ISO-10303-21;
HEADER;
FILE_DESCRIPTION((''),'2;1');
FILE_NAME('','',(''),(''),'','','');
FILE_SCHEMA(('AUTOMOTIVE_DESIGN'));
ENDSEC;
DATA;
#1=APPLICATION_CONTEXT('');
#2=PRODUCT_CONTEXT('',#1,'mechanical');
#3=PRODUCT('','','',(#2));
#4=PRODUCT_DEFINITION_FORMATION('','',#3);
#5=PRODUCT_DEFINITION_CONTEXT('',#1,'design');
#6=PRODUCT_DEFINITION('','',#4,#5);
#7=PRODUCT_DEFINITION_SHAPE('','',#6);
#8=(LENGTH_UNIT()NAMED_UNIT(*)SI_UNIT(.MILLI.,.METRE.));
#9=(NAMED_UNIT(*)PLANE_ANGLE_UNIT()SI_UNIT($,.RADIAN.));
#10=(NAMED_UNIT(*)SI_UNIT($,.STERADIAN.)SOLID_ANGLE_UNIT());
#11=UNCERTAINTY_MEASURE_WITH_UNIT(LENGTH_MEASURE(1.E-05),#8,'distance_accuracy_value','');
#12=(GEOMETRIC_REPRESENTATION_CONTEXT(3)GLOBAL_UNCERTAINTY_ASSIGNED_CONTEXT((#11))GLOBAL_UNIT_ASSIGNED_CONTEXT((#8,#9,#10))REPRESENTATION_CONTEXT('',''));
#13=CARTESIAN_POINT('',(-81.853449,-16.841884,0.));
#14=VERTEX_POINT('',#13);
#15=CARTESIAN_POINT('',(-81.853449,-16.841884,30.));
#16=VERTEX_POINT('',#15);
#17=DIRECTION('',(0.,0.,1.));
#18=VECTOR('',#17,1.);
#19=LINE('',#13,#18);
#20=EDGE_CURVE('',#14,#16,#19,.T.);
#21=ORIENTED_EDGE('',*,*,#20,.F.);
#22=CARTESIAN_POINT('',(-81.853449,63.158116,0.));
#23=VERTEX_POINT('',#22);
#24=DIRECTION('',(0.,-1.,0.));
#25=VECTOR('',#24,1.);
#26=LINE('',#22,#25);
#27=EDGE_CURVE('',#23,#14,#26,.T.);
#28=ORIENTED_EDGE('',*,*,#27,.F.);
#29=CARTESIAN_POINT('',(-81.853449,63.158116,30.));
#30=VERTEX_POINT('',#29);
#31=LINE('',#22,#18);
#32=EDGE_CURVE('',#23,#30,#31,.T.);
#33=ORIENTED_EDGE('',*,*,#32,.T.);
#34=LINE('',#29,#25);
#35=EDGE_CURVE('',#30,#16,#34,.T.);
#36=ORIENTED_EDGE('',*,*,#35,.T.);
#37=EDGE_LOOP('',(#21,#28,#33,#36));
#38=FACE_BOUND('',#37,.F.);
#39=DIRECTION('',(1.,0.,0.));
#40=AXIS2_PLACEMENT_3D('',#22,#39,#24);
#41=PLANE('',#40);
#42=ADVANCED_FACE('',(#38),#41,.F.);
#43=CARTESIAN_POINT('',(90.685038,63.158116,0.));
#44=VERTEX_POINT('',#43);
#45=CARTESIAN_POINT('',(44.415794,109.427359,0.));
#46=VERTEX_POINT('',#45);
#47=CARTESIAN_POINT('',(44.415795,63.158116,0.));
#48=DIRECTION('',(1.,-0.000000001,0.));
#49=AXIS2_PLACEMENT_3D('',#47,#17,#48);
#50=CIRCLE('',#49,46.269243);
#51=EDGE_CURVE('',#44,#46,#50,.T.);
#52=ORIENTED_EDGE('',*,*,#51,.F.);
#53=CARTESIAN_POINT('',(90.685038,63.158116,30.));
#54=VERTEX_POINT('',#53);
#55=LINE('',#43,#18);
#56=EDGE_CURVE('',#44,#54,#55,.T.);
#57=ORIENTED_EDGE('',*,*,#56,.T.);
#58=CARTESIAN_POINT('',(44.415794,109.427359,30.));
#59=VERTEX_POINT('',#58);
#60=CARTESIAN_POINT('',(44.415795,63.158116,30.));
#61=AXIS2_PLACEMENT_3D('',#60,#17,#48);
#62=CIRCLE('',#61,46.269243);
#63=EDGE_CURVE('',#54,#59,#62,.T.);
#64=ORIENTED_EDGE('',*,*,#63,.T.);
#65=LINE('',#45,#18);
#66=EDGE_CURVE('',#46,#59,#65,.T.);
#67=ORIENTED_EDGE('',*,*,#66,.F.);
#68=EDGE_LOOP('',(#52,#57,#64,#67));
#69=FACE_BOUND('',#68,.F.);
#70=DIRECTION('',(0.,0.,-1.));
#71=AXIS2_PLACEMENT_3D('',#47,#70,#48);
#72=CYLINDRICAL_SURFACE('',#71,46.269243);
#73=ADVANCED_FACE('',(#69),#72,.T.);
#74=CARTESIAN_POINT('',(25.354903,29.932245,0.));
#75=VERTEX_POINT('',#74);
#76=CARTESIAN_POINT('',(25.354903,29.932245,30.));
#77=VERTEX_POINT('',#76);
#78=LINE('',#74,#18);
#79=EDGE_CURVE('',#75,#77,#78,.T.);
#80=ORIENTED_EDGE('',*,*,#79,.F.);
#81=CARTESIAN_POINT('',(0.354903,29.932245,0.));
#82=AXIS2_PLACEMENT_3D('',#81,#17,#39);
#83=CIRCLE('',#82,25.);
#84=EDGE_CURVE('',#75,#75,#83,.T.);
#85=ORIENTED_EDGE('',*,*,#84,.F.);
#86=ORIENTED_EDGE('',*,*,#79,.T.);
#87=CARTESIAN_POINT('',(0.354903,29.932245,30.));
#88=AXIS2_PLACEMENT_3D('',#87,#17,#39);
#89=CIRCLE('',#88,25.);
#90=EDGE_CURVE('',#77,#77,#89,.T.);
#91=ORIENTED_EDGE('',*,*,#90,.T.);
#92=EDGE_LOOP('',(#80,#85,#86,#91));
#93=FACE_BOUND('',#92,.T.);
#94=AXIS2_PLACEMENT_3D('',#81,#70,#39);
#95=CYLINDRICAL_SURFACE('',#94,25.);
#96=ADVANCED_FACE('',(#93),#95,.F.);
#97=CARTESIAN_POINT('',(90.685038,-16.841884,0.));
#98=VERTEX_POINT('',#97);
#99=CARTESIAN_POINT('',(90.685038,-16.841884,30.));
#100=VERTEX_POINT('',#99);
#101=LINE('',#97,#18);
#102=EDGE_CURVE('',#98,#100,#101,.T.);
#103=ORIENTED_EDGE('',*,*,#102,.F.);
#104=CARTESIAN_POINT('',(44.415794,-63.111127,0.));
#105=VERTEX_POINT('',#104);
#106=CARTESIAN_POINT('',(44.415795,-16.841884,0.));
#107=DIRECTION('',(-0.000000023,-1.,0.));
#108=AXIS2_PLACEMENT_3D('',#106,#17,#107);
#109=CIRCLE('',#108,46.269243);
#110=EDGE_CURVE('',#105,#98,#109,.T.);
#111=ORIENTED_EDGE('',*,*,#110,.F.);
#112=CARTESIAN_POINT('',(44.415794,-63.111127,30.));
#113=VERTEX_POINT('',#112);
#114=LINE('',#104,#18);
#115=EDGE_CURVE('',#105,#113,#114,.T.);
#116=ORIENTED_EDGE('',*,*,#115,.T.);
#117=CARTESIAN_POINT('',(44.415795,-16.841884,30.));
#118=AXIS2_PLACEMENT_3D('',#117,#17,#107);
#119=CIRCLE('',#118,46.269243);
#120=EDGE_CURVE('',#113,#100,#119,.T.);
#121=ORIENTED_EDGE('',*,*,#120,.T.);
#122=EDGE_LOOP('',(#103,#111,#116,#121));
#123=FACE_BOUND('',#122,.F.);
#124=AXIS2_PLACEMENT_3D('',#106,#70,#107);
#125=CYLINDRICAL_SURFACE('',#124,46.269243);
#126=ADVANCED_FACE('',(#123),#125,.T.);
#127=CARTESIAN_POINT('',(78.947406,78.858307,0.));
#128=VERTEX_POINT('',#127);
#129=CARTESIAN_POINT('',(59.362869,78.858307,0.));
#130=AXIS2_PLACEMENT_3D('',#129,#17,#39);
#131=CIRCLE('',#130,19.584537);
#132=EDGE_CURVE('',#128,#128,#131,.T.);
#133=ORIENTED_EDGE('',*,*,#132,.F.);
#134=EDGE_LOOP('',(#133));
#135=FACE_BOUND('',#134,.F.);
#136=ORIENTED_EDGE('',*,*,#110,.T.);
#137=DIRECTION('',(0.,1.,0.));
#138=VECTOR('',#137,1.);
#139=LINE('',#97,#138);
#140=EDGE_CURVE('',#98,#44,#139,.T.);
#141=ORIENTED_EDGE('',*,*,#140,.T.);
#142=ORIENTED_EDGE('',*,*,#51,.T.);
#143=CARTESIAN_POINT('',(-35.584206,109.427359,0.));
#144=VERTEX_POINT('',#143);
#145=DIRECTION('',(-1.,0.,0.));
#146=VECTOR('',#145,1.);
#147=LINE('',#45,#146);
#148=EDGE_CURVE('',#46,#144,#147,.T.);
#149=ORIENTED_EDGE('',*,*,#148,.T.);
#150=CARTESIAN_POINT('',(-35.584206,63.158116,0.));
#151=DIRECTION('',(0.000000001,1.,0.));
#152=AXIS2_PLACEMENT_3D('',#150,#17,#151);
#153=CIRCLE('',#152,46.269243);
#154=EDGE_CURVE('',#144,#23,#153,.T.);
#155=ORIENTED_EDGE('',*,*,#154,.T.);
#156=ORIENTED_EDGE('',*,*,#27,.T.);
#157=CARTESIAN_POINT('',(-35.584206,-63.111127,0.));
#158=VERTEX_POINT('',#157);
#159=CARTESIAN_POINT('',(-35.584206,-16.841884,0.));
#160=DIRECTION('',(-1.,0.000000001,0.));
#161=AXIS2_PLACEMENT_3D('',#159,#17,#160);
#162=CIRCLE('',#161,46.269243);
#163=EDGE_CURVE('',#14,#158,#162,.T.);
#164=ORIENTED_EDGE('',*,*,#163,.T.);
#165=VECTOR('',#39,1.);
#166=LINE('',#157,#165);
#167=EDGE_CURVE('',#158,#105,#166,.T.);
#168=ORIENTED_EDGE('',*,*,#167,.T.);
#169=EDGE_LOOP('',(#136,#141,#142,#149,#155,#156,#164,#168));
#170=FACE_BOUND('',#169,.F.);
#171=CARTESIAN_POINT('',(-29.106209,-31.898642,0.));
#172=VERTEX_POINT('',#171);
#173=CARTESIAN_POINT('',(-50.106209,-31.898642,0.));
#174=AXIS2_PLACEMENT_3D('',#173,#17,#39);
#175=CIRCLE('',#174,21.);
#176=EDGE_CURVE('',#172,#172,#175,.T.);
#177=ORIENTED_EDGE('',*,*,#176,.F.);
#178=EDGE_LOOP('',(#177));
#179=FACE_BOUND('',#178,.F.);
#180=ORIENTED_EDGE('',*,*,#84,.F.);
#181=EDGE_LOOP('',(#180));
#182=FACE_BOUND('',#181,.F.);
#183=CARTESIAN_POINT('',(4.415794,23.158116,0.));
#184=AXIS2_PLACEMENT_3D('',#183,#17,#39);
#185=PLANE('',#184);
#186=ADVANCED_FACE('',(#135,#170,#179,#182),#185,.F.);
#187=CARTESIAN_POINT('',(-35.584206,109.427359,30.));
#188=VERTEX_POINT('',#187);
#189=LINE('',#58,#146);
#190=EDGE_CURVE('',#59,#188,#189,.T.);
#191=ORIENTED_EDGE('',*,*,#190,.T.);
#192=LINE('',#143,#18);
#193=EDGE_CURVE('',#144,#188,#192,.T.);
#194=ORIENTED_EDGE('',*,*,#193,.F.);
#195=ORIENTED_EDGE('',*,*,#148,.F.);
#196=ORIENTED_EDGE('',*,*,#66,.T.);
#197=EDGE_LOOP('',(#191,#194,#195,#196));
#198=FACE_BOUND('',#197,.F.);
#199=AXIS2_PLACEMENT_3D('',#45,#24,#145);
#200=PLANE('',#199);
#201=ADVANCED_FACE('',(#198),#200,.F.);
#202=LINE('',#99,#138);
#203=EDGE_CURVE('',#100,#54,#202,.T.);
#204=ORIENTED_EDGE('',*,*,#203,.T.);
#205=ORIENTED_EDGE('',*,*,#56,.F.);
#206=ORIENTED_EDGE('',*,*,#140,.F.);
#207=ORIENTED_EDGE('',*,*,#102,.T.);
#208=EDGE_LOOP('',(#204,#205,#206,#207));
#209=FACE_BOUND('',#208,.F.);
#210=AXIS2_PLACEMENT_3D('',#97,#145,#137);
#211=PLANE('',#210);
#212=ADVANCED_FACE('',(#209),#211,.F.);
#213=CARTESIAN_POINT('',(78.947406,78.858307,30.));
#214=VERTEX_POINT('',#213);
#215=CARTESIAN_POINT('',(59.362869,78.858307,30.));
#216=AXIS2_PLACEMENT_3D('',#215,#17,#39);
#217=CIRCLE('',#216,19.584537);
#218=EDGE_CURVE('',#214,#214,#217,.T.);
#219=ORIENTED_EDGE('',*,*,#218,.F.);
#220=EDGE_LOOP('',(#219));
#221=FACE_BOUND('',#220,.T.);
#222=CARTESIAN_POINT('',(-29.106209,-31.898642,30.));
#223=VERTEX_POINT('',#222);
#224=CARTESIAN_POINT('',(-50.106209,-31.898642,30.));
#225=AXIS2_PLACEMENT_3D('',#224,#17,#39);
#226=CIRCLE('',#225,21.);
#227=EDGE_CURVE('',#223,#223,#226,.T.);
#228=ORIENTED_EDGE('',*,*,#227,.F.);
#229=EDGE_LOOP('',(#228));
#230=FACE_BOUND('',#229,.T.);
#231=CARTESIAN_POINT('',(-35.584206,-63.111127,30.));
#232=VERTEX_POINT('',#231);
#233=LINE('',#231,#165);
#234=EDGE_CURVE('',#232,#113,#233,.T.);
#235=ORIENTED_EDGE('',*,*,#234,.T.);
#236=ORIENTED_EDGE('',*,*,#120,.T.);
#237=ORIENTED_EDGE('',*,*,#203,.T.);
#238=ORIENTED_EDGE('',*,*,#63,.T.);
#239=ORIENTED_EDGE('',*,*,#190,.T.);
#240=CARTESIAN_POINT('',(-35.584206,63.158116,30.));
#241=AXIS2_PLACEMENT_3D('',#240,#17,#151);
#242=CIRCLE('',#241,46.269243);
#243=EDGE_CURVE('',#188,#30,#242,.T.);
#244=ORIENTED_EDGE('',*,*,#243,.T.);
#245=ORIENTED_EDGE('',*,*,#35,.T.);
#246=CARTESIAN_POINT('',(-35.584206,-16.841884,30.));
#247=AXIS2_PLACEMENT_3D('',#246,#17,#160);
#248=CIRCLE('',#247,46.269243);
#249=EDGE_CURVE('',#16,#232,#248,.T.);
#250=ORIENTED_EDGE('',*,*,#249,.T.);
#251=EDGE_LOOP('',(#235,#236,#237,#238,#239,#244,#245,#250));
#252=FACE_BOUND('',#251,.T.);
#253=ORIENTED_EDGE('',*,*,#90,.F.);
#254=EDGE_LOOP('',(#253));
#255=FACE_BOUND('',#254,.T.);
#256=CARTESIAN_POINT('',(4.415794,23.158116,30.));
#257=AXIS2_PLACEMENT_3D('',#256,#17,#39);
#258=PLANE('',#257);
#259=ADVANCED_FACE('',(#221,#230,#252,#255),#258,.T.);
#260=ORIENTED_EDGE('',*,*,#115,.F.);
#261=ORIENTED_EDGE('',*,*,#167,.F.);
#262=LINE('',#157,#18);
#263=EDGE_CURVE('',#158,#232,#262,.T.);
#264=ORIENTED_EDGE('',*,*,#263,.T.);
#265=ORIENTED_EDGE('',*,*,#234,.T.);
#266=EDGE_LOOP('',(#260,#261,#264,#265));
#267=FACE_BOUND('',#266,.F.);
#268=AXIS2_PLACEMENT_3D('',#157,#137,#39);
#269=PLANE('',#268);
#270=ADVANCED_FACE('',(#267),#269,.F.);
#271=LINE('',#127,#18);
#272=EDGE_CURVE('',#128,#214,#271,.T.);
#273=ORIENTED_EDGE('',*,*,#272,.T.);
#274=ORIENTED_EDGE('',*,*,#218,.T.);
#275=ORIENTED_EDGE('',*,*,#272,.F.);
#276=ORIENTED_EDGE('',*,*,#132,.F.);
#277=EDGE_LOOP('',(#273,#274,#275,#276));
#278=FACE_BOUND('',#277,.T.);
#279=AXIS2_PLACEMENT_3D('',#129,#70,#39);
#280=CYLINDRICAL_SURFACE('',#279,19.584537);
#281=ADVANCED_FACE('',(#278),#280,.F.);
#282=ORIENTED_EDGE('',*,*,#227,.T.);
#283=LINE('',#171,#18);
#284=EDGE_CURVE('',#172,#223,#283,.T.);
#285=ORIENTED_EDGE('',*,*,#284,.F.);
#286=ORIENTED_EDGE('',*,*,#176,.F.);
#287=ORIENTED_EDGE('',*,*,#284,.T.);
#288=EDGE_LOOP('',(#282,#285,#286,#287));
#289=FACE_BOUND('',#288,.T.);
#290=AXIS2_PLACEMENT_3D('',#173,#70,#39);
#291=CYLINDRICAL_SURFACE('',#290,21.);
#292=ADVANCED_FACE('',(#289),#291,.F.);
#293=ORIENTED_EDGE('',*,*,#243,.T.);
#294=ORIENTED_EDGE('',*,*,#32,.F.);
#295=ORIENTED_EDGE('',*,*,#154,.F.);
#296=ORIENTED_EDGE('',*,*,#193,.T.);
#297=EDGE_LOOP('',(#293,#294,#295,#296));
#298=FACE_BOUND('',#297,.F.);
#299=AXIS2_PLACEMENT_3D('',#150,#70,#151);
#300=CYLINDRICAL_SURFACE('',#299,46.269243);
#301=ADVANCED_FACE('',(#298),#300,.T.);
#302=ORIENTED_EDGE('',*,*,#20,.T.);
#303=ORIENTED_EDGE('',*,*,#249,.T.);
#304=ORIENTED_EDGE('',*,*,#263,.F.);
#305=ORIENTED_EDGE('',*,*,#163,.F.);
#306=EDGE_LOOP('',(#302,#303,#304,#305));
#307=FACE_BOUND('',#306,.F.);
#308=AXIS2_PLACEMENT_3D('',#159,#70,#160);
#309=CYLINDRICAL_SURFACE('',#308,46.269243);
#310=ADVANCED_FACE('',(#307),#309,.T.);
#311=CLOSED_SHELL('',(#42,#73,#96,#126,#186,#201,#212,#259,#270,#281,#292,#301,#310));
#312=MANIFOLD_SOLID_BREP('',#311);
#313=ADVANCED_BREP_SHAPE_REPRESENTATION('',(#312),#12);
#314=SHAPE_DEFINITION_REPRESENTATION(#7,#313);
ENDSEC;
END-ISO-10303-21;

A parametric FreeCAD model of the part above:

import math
import FreeCAD as App
import Part
import Sketcher
from FreeCAD import Vector

doc = App.newDocument("Part")
body = doc.addObject("PartDesign::Body", "Body")

sketch1 = body.newObject("Sketcher::SketchObject", "Sketch")
sketch1.AttachmentSupport = (doc.getObject("XY_Plane"), [""])
sketch1.MapMode = "FlatFace"
sketch1.addGeometry(Part.LineSegment(Vector(-36, -63, 0), Vector(44, -63, 0)), False)
sketch1.addGeometry(Part.ArcOfCircle(Part.Circle(Vector(44, -17, 0), Vector(0, 0, 1), 46), math.radians(-90), math.radians(0)), False)
sketch1.addGeometry(Part.LineSegment(Vector(91, -17, 0), Vector(91, 63, 0)), False)
sketch1.addGeometry(Part.ArcOfCircle(Part.Circle(Vector(44, 63, 0), Vector(0, 0, 1), 46), math.radians(0), math.radians(90)), False)
sketch1.addGeometry(Part.LineSegment(Vector(44, 109, 0), Vector(-36, 109, 0)), False)
sketch1.addGeometry(Part.ArcOfCircle(Part.Circle(Vector(-36, 63, 0), Vector(0, 0, 1), 46), math.radians(90), math.radians(180)), False)
sketch1.addGeometry(Part.LineSegment(Vector(-82, 63, 0), Vector(-82, -17, 0)), False)
sketch1.addGeometry(Part.ArcOfCircle(Part.Circle(Vector(-36, -17, 0), Vector(0, 0, 1), 46), math.radians(180), math.radians(270)), False)
sketch1.addGeometry(Part.Circle(Vector(-50, -32, 0), Vector(0, 0, 1), 21), False)
sketch1.addGeometry(Part.Circle(Vector(0, 30, 0), Vector(0, 0, 1), 25), False)
sketch1.addGeometry(Part.Circle(Vector(59, 79, 0), Vector(0, 0, 1), 20), False)
sketch1.addConstraint(Sketcher.Constraint("Tangent", 0, 2, 1, 1))
sketch1.addConstraint(Sketcher.Constraint("Tangent", 1, 2, 2, 1))
sketch1.addConstraint(Sketcher.Constraint("Tangent", 2, 2, 3, 1))
sketch1.addConstraint(Sketcher.Constraint("Tangent", 3, 2, 4, 1))
sketch1.addConstraint(Sketcher.Constraint("Tangent", 4, 2, 5, 1))
sketch1.addConstraint(Sketcher.Constraint("Tangent", 5, 2, 6, 1))
sketch1.addConstraint(Sketcher.Constraint("Tangent", 6, 2, 7, 1))
sketch1.addConstraint(Sketcher.Constraint("Tangent", 7, 2, 0, 1))
sketch1.addConstraint(Sketcher.Constraint("Horizontal", 0))
sketch1.addConstraint(Sketcher.Constraint("Vertical", 2))
sketch1.addConstraint(Sketcher.Constraint("Horizontal", 4))
sketch1.addConstraint(Sketcher.Constraint("Vertical", 6))
sketch1.addConstraint(Sketcher.Constraint("Equal", 1, 3))
sketch1.addConstraint(Sketcher.Constraint("Equal", 3, 5))
sketch1.addConstraint(Sketcher.Constraint("Equal", 5, 7))
sketch1.addConstraint(Sketcher.Constraint("Equal", 4, 2))
sketch1.addConstraint(Sketcher.Constraint("Diameter", 8, 42.0))
sketch1.addConstraint(Sketcher.Constraint("Diameter", 9, 50.0))
sketch1.addConstraint(Sketcher.Constraint("DistanceX", 0, 1, 0, 2, 80.0))
sketch1.addConstraint(Sketcher.Constraint("Diameter", 10, 39.169074))
sketch1.addConstraint(Sketcher.Constraint("Radius", 1, 46.269243))
sketch1.addConstraint(Sketcher.Constraint("DistanceX", 8, 3, -1, 1, 50.106209))
sketch1.addConstraint(Sketcher.Constraint("DistanceY", 8, 3, -1, 1, 31.898642))
sketch1.addConstraint(Sketcher.Constraint("DistanceX", -1, 1, 10, 3, 59.362869))
sketch1.addConstraint(Sketcher.Constraint("DistanceX", -1, 1, 1, 2, 90.685038))
sketch1.addConstraint(Sketcher.Constraint("DistanceY", -1, 1, 3, 2, 109.427359))
sketch1.addConstraint(Sketcher.Constraint("DistanceX", 5, 3, 9, 3, 35.939109))
sketch1.addConstraint(Sketcher.Constraint("DistanceY", 9, 3, 5, 3, 33.225871))
sketch1.addConstraint(Sketcher.Constraint("DistanceY", 3, 3, 10, 3, 15.700191))
pad1 = body.newObject("PartDesign::Pad", "Pad")
pad1.Profile = sketch1
pad1.Length = 30

sketch2 = body.newObject("Sketcher::SketchObject", "Sketch001")
sketch2.AttachmentSupport = (doc.getObject("XY_Plane"), [""])
sketch2.MapMode = "FlatFace"
sketch2.addGeometry(Part.LineSegment(Vector(-36, -63, 0), Vector(44, -63, 0)), False)
sketch2.addGeometry(Part.ArcOfCircle(Part.Circle(Vector(44, -17, 0), Vector(0, 0, 1), 46), math.radians(-90), math.radians(0)), False)
sketch2.addGeometry(Part.LineSegment(Vector(91, -17, 0), Vector(91, 63, 0)), False)
sketch2.addGeometry(Part.ArcOfCircle(Part.Circle(Vector(44, 63, 0), Vector(0, 0, 1), 46), math.radians(0), math.radians(90)), False)
sketch2.addGeometry(Part.LineSegment(Vector(44, 109, 0), Vector(-36, 109, 0)), False)
sketch2.addGeometry(Part.ArcOfCircle(Part.Circle(Vector(-36, 63, 0), Vector(0, 0, 1), 46), math.radians(90), math.radians(180)), False)
sketch2.addGeometry(Part.LineSegment(Vector(-82, 63, 0), Vector(-82, -17, 0)), False)
sketch2.addGeometry(Part.ArcOfCircle(Part.Circle(Vector(-36, -17, 0), Vector(0, 0, 1), 46), math.radians(180), math.radians(270)), False)
sketch2.addGeometry(Part.Circle(Vector(-50, -32, 0), Vector(0, 0, 1), 21), False)
sketch2.addGeometry(Part.Circle(Vector(0, 30, 0), Vector(0, 0, 1), 25), False)
sketch2.addGeometry(Part.Circle(Vector(59, 79, 0), Vector(0, 0, 1), 20), False)
sketch2.addConstraint(Sketcher.Constraint("Tangent", 0, 2, 1, 1))
sketch2.addConstraint(Sketcher.Constraint("Tangent", 1, 2, 2, 1))
sketch2.addConstraint(Sketcher.Constraint("Tangent", 2, 2, 3, 1))
sketch2.addConstraint(Sketcher.Constraint("Tangent", 3, 2, 4, 1))
sketch2.addConstraint(Sketcher.Constraint("Tangent", 4, 2, 5, 1))
sketch2.addConstraint(Sketcher.Constraint("Tangent", 5, 2, 6, 1))
sketch2.addConstraint(Sketcher.Constraint("Tangent", 6, 2, 7, 1))
sketch2.addConstraint(Sketcher.Constraint("Tangent", 7, 2, 0, 1))
sketch2.addConstraint(Sketcher.Constraint("Horizontal", 0))
sketch2.addConstraint(Sketcher.Constraint("Vertical", 2))
sketch2.addConstraint(Sketcher.Constraint("Horizontal", 4))
sketch2.addConstraint(Sketcher.Constraint("Vertical", 6))
sketch2.addConstraint(Sketcher.Constraint("Equal", 1, 3))
sketch2.addConstraint(Sketcher.Constraint("Equal", 3, 5))
sketch2.addConstraint(Sketcher.Constraint("Equal", 5, 7))
sketch2.addConstraint(Sketcher.Constraint("Equal", 4, 2))
sketch2.addConstraint(Sketcher.Constraint("Diameter", 8, 42.0))
sketch2.addConstraint(Sketcher.Constraint("Diameter", 9, 50.0))
sketch2.addConstraint(Sketcher.Constraint("DistanceX", 0, 1, 0, 2, 80.0))
sketch2.addConstraint(Sketcher.Constraint("Diameter", 10, 39.169074))
sketch2.addConstraint(Sketcher.Constraint("Radius", 1, 46.269243))
sketch2.addConstraint(Sketcher.Constraint("DistanceX", 8, 3, -1, 1, 50.106209))
sketch2.addConstraint(Sketcher.Constraint("DistanceY", 8, 3, -1, 1, 31.898642))
sketch2.addConstraint(Sketcher.Constraint("DistanceX", -1, 1, 10, 3, 59.362869))
sketch2.addConstraint(Sketcher.Constraint("DistanceX", -1, 1, 1, 2, 90.685038))
sketch2.addConstraint(Sketcher.Constraint("DistanceY", -1, 1, 3, 2, 109.427359))
sketch2.addConstraint(Sketcher.Constraint("DistanceX", 5, 3, 9, 3, 35.939109))
sketch2.addConstraint(Sketcher.Constraint("DistanceY", 9, 3, 5, 3, 33.225871))
sketch2.addConstraint(Sketcher.Constraint("DistanceY", 3, 3, 10, 3, 15.700191))
pad2 = body.newObject("PartDesign::Pad", "Pad001")
pad2.Profile = sketch2
pad2.Length = 30

doc.recompute()
